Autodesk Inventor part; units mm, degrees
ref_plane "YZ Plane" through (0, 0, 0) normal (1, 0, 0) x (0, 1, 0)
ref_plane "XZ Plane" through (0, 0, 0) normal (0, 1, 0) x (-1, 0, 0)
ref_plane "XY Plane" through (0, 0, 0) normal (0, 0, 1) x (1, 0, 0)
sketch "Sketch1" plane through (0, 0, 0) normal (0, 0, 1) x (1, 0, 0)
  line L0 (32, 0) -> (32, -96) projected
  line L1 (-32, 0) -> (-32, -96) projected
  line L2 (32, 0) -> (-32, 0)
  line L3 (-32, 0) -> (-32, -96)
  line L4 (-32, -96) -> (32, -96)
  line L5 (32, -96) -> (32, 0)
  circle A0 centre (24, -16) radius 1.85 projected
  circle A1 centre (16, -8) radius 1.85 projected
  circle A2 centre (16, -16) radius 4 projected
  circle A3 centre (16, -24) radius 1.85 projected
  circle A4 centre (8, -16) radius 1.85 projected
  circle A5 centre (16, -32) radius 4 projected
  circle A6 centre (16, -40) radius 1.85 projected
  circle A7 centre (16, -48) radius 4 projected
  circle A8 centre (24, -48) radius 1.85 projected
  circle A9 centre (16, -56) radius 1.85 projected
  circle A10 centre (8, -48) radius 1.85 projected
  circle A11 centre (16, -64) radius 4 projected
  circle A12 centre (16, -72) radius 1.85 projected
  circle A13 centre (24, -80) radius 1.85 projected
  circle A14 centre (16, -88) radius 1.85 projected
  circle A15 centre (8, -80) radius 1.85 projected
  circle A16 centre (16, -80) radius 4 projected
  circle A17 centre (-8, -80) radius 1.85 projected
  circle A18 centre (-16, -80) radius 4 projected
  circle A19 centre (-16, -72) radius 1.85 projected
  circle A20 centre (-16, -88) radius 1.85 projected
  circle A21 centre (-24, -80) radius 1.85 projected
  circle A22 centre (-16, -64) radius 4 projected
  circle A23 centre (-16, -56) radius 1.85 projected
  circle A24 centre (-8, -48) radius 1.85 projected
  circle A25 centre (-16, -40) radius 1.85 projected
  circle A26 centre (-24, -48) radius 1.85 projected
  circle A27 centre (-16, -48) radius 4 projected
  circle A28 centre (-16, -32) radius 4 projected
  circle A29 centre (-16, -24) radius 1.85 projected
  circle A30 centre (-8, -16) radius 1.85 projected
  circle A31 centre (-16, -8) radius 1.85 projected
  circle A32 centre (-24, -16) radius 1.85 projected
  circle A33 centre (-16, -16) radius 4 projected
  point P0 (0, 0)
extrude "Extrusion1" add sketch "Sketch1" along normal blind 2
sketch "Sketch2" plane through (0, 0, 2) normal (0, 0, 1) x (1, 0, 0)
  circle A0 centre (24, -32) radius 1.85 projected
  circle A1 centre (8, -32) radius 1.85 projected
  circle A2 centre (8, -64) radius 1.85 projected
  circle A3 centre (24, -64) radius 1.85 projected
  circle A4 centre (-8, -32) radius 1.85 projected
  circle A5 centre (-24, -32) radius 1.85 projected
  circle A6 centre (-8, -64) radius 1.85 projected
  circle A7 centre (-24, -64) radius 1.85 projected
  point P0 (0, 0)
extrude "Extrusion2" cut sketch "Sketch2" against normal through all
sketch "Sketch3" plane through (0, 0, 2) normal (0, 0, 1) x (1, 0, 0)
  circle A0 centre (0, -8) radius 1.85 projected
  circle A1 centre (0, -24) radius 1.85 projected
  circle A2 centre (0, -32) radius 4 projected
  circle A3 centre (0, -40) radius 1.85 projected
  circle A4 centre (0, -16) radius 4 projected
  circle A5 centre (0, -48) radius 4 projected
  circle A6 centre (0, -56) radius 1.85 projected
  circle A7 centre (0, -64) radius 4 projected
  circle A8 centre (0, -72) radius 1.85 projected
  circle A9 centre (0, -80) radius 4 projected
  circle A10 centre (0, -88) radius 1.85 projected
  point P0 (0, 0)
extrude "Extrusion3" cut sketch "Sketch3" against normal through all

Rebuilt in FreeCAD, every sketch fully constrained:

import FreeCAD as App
import Part
import Sketcher

V = App.Vector
Q = App.Units.Quantity


def add_polygon(sketch, points):
    """Adds a closed chain of lines whose ends are joined by coincident constraints."""
    first, n = sketch.GeometryCount, len(points)
    for a, b in zip(points, points[1:] + points[:1]):
        sketch.addGeometry(Part.LineSegment(App.Vector(*a, 0), App.Vector(*b, 0)), False)
    for i in range(n):
        sketch.addConstraint(Sketcher.Constraint("Coincident", first + i, 2, first + (i + 1) % n, 1))

doc = App.newDocument("Part")
body = doc.addObject("PartDesign::Body", "Body")

sketch1 = body.newObject("Sketcher::SketchObject", "Sketch")
sketch1.AttachmentSupport = (doc.getObject("XY_Plane"), [""])
sketch1.MapMode = "FlatFace"
add_polygon(sketch1, [(32, -96), (32, 0), (-32, 0), (-32, -96)])
sketch1.addGeometry(Part.Circle(V(-24, -80, 0), V(0, 0, 1), 1.9), False)
sketch1.addGeometry(Part.Circle(V(-16, -88, 0), V(0, 0, 1), 1.9), False)
sketch1.addGeometry(Part.Circle(V(-16, -80, 0), V(0, 0, 1), 4), False)
sketch1.addGeometry(Part.Circle(V(-8, -80, 0), V(0, 0, 1), 1.9), False)
sketch1.addGeometry(Part.Circle(V(-16, -72, 0), V(0, 0, 1), 1.9), False)
sketch1.addGeometry(Part.Circle(V(-16, -64, 0), V(0, 0, 1), 4), False)
sketch1.addGeometry(Part.Circle(V(-16, -56, 0), V(0, 0, 1), 1.9), False)
sketch1.addGeometry(Part.Circle(V(8, -80, 0), V(0, 0, 1), 1.9), False)
sketch1.addGeometry(Part.Circle(V(16, -88, 0), V(0, 0, 1), 1.9), False)
sketch1.addGeometry(Part.Circle(V(16, -80, 0), V(0, 0, 1), 4), False)
sketch1.addGeometry(Part.Circle(V(24, -80, 0), V(0, 0, 1), 1.9), False)
sketch1.addGeometry(Part.Circle(V(16, -72, 0), V(0, 0, 1), 1.9), False)
sketch1.addGeometry(Part.Circle(V(16, -64, 0), V(0, 0, 1), 4), False)
sketch1.addGeometry(Part.Circle(V(16, -56, 0), V(0, 0, 1), 1.9), False)
sketch1.addGeometry(Part.Circle(V(-24, -48, 0), V(0, 0, 1), 1.9), False)
sketch1.addGeometry(Part.Circle(V(-16, -48, 0), V(0, 0, 1), 4), False)
sketch1.addGeometry(Part.Circle(V(-16, -40, 0), V(0, 0, 1), 1.9), False)
sketch1.addGeometry(Part.Circle(V(-8, -48, 0), V(0, 0, 1), 1.9), False)
sketch1.addGeometry(Part.Circle(V(-16, -32, 0), V(0, 0, 1), 4), False)
sketch1.addGeometry(Part.Circle(V(-24, -16, 0), V(0, 0, 1), 1.9), False)
sketch1.addGeometry(Part.Circle(V(-16, -24, 0), V(0, 0, 1), 1.9), False)
sketch1.addGeometry(Part.Circle(V(-16, -16, 0), V(0, 0, 1), 4), False)
sketch1.addGeometry(Part.Circle(V(-8, -16, 0), V(0, 0, 1), 1.9), False)
sketch1.addGeometry(Part.Circle(V(-16, -8, 0), V(0, 0, 1), 1.9), False)
sketch1.addGeometry(Part.Circle(V(8, -48, 0), V(0, 0, 1), 1.9), False)
sketch1.addGeometry(Part.Circle(V(16, -48, 0), V(0, 0, 1), 4), False)
sketch1.addGeometry(Part.Circle(V(16, -40, 0), V(0, 0, 1), 1.9), False)
sketch1.addGeometry(Part.Circle(V(24, -48, 0), V(0, 0, 1), 1.9), False)
sketch1.addGeometry(Part.Circle(V(16, -32, 0), V(0, 0, 1), 4), False)
sketch1.addGeometry(Part.Circle(V(8, -16, 0), V(0, 0, 1), 1.9), False)
sketch1.addGeometry(Part.Circle(V(16, -24, 0), V(0, 0, 1), 1.9), False)
sketch1.addGeometry(Part.Circle(V(16, -16, 0), V(0, 0, 1), 4), False)
sketch1.addGeometry(Part.Circle(V(24, -16, 0), V(0, 0, 1), 1.9), False)
sketch1.addGeometry(Part.Circle(V(16, -8, 0), V(0, 0, 1), 1.9), False)
sketch1.addConstraint([
    Sketcher.Constraint("Vertical", 0),
    Sketcher.Constraint("Horizontal", 1),
    Sketcher.Constraint("Vertical", 2),
    Sketcher.Constraint("Horizontal", 3),
    Sketcher.Constraint("Equal", 4, 5),
    Sketcher.Constraint("Equal", 5, 7),
    Sketcher.Constraint("Equal", 7, 8),
    Sketcher.Constraint("Equal", 6, 9),
    Sketcher.Constraint("Equal", 8, 10),
    Sketcher.Constraint("Equal", 10, 11),
    Sketcher.Constraint("Equal", 11, 12),
    Sketcher.Constraint("Equal", 9, 13),
    Sketcher.Constraint("Equal", 12, 14),
    Sketcher.Constraint("Equal", 14, 15),
    Sketcher.Constraint("Equal", 13, 16),
    Sketcher.Constraint("Equal", 15, 17),
    Sketcher.Constraint("Equal", 17, 18),
    Sketcher.Constraint("Equal", 16, 19),
    Sketcher.Constraint("Equal", 18, 20),
    Sketcher.Constraint("Equal", 20, 21),
    Sketcher.Constraint("Equal", 19, 22),
    Sketcher.Constraint("Equal", 21, 23),
    Sketcher.Constraint("Equal", 23, 24),
    Sketcher.Constraint("Equal", 22, 25),
    Sketcher.Constraint("Equal", 24, 26),
    Sketcher.Constraint("Equal", 26, 27),
    Sketcher.Constraint("Equal", 27, 28),
    Sketcher.Constraint("Equal", 25, 29),
    Sketcher.Constraint("Equal", 28, 30),
    Sketcher.Constraint("Equal", 30, 31),
    Sketcher.Constraint("Equal", 29, 32),
    Sketcher.Constraint("Equal", 31, 33),
    Sketcher.Constraint("Equal", 33, 34),
    Sketcher.Constraint("Equal", 32, 35),
    Sketcher.Constraint("Equal", 34, 36),
    Sketcher.Constraint("Equal", 36, 37),
    Sketcher.Constraint("Symmetric", 0, 2, 1, 2, -1, 1),
    Sketcher.Constraint("Symmetric", 7, 3, 11, 3, -2),
    Sketcher.Constraint("Symmetric", 5, 3, 12, 3, -2),
    Sketcher.Constraint("Symmetric", 6, 3, 13, 3, -2),
    Sketcher.Constraint("Symmetric", 4, 3, 14, 3, -2),
    Sketcher.Constraint("Symmetric", 8, 3, 15, 3, -2),
    Sketcher.Constraint("Symmetric", 9, 3, 16, 3, -2),
    Sketcher.Constraint("Symmetric", 10, 3, 17, 3, -2),
    Sketcher.Constraint("Symmetric", 21, 3, 28, 3, -2),
    Sketcher.Constraint("Symmetric", 19, 3, 29, 3, -2),
    Sketcher.Constraint("Symmetric", 20, 3, 30, 3, -2),
    Sketcher.Constraint("Symmetric", 18, 3, 31, 3, -2),
    Sketcher.Constraint("Symmetric", 22, 3, 32, 3, -2),
    Sketcher.Constraint("Symmetric", 26, 3, 33, 3, -2),
    Sketcher.Constraint("Symmetric", 24, 3, 34, 3, -2),
    Sketcher.Constraint("Symmetric", 25, 3, 35, 3, -2),
    Sketcher.Constraint("Symmetric", 23, 3, 36, 3, -2),
    Sketcher.Constraint("Symmetric", 27, 3, 37, 3, -2),
    Sketcher.Constraint("Horizontal", 4, 3, 6, 3),
    Sketcher.Constraint("Horizontal", 6, 3, 7, 3),
    Sketcher.Constraint("Horizontal", 18, 3, 19, 3),
    Sketcher.Constraint("Horizontal", 19, 3, 21, 3),
    Sketcher.Constraint("Horizontal", 23, 3, 25, 3),
    Sketcher.Constraint("Horizontal", 25, 3, 26, 3),
    Sketcher.Constraint("Vertical", 5, 3, 6, 3),
    Sketcher.Constraint("Vertical", 6, 3, 8, 3),
    Sketcher.Constraint("Vertical", 8, 3, 9, 3),
    Sketcher.Constraint("Vertical", 9, 3, 10, 3),
    Sketcher.Constraint("Vertical", 4, 3, 18, 3),
    Sketcher.Constraint("Vertical", 10, 3, 19, 3),
    Sketcher.Constraint("Vertical", 19, 3, 20, 3),
    Sketcher.Constraint("Vertical", 7, 3, 21, 3),
    Sketcher.Constraint("Vertical", 20, 3, 22, 3),
    Sketcher.Constraint("Vertical", 18, 3, 23, 3),
    Sketcher.Constraint("Vertical", 22, 3, 24, 3),
    Sketcher.Constraint("Vertical", 24, 3, 25, 3),
    Sketcher.Constraint("Vertical", 21, 3, 26, 3),
    Sketcher.Constraint("Vertical", 25, 3, 27, 3),
    Sketcher.Constraint("Diameter", 6, Q("8 mm")),
    Sketcher.Constraint("Diameter", 4, Q("3.7 mm")),
    Sketcher.Constraint("DistanceX", 1, 2, 1, 1, Q("64 mm")),
    Sketcher.Constraint("DistanceY", 0, 1, 0, 2, Q("96 mm")),
    Sketcher.Constraint("DistanceX", 4, 3, -1, 1, Q("24 mm")),
    Sketcher.Constraint("DistanceY", 4, 3, -1, 1, Q("80 mm")),
    Sketcher.Constraint("DistanceX", 5, 3, -1, 1, Q("16 mm")),
    Sketcher.Constraint("DistanceY", 5, 3, -1, 1, Q("88 mm")),
    Sketcher.Constraint("DistanceX", 7, 3, -1, 1, Q("8 mm")),
    Sketcher.Constraint("DistanceY", 8, 3, -1, 1, Q("72 mm")),
    Sketcher.Constraint("DistanceY", 9, 3, -1, 1, Q("64 mm")),
    Sketcher.Constraint("DistanceY", 10, 3, -1, 1, Q("56 mm")),
    Sketcher.Constraint("DistanceY", 18, 3, -1, 1, Q("48 mm")),
    Sketcher.Constraint("DistanceY", 20, 3, -1, 1, Q("40 mm")),
    Sketcher.Constraint("DistanceY", 22, 3, -1, 1, Q("32 mm")),
    Sketcher.Constraint("DistanceY", 23, 3, -1, 1, Q("16 mm")),
    Sketcher.Constraint("DistanceY", 24, 3, -1, 1, Q("24 mm")),
    Sketcher.Constraint("DistanceY", 27, 3, -1, 1, Q("8 mm")),
])
pad1 = body.newObject("PartDesign::Pad", "Pad")
pad1.Profile = sketch1
pad1.Length = 2

sketch2 = body.newObject("Sketcher::SketchObject", "Sketch001")
sketch2.AttachmentSupport = (doc.getObject("XY_Plane"), [""])
sketch2.MapMode = "FlatFace"
sketch2.AttachmentOffset = App.Placement(V(0, 0, 2), App.Rotation())
sketch2.addGeometry([
    Part.Circle(V(24, -32, 0), V(0, 0, 1), 1.9),
    Part.Circle(V(8, -32, 0), V(0, 0, 1), 1.9),
    Part.Circle(V(8, -64, 0), V(0, 0, 1), 1.9),
    Part.Circle(V(24, -64, 0), V(0, 0, 1), 1.9),
    Part.Circle(V(-8, -32, 0), V(0, 0, 1), 1.9),
    Part.Circle(V(-24, -32, 0), V(0, 0, 1), 1.9),
    Part.Circle(V(-8, -64, 0), V(0, 0, 1), 1.9),
    Part.Circle(V(-24, -64, 0), V(0, 0, 1), 1.9),
], False)
sketch2.addConstraint([
    Sketcher.Constraint("Equal", 0, 1),
    Sketcher.Constraint("Equal", 1, 2),
    Sketcher.Constraint("Equal", 2, 3),
    Sketcher.Constraint("Equal", 3, 4),
    Sketcher.Constraint("Equal", 4, 5),
    Sketcher.Constraint("Equal", 5, 6),
    Sketcher.Constraint("Equal", 6, 7),
    Sketcher.Constraint("Symmetric", 1, 3, 4, 3, -2),
    Sketcher.Constraint("Symmetric", 0, 3, 5, 3, -2),
    Sketcher.Constraint("Symmetric", 2, 3, 6, 3, -2),
    Sketcher.Constraint("Symmetric", 3, 3, 7, 3, -2),
    Sketcher.Constraint("Horizontal", 0, 3, 1, 3),
    Sketcher.Constraint("Horizontal", 2, 3, 3, 3),
    Sketcher.Constraint("Vertical", 1, 3, 2, 3),
    Sketcher.Constraint("Vertical", 0, 3, 3, 3),
    Sketcher.Constraint("Diameter", 0, Q("3.7 mm")),
    Sketcher.Constraint("DistanceX", -1, 1, 0, 3, Q("24 mm")),
    Sketcher.Constraint("DistanceY", 0, 3, -1, 1, Q("32 mm")),
    Sketcher.Constraint("DistanceX", -1, 1, 1, 3, Q("8 mm")),
    Sketcher.Constraint("DistanceY", 2, 3, -1, 1, Q("64 mm")),
])
pocket1 = body.newObject("PartDesign::Pocket", "Pocket")
pocket1.Profile = sketch2
pocket1.Type = "ThroughAll"

sketch3 = body.newObject("Sketcher::SketchObject", "Sketch002")
sketch3.AttachmentSupport = (doc.getObject("XY_Plane"), [""])
sketch3.MapMode = "FlatFace"
sketch3.AttachmentOffset = App.Placement(V(0, 0, 2), App.Rotation())
sketch3.addGeometry([
    Part.Circle(V(0, -8, 0), V(0, 0, 1), 1.9),
    Part.Circle(V(0, -24, 0), V(0, 0, 1), 1.9),
    Part.Circle(V(0, -32, 0), V(0, 0, 1), 4),
    Part.Circle(V(0, -40, 0), V(0, 0, 1), 1.9),
    Part.Circle(V(0, -16, 0), V(0, 0, 1), 4),
    Part.Circle(V(0, -48, 0), V(0, 0, 1), 4),
    Part.Circle(V(0, -56, 0), V(0, 0, 1), 1.9),
    Part.Circle(V(0, -64, 0), V(0, 0, 1), 4),
    Part.Circle(V(0, -72, 0), V(0, 0, 1), 1.9),
    Part.Circle(V(0, -80, 0), V(0, 0, 1), 4),
    Part.Circle(V(0, -88, 0), V(0, 0, 1), 1.9),
], False)
sketch3.addConstraint([
    Sketcher.Constraint("Equal", 0, 1),
    Sketcher.Constraint("Equal", 1, 3),
    Sketcher.Constraint("Equal", 2, 4),
    Sketcher.Constraint("Equal", 4, 5),
    Sketcher.Constraint("Equal", 3, 6),
    Sketcher.Constraint("Equal", 5, 7),
    Sketcher.Constraint("Equal", 6, 8),
    Sketcher.Constraint("Equal", 7, 9),
    Sketcher.Constraint("Equal", 8, 10),
    Sketcher.Constraint("PointOnObject", 0, 3, -2),
    Sketcher.Constraint("PointOnObject", 1, 3, -2),
    Sketcher.Constraint("PointOnObject", 2, 3, -2),
    Sketcher.Constraint("PointOnObject", 3, 3, -2),
    Sketcher.Constraint("PointOnObject", 4, 3, -2),
    Sketcher.Constraint("PointOnObject", 5, 3, -2),
    Sketcher.Constraint("PointOnObject", 6, 3, -2),
    Sketcher.Constraint("PointOnObject", 7, 3, -2),
    Sketcher.Constraint("PointOnObject", 8, 3, -2),
    Sketcher.Constraint("PointOnObject", 9, 3, -2),
    Sketcher.Constraint("PointOnObject", 10, 3, -2),
    Sketcher.Constraint("Diameter", 2, Q("8 mm")),
    Sketcher.Constraint("Diameter", 0, Q("3.7 mm")),
    Sketcher.Constraint("DistanceY", 0, 3, -1, 1, Q("8 mm")),
    Sketcher.Constraint("DistanceY", 1, 3, -1, 1, Q("24 mm")),
    Sketcher.Constraint("DistanceY", 2, 3, -1, 1, Q("32 mm")),
    Sketcher.Constraint("DistanceY", 3, 3, -1, 1, Q("40 mm")),
    Sketcher.Constraint("DistanceY", 4, 3, -1, 1, Q("16 mm")),
    Sketcher.Constraint("DistanceY", 5, 3, -1, 1, Q("48 mm")),
    Sketcher.Constraint("DistanceY", 6, 3, -1, 1, Q("56 mm")),
    Sketcher.Constraint("DistanceY", 7, 3, -1, 1, Q("64 mm")),
    Sketcher.Constraint("DistanceY", 8, 3, -1, 1, Q("72 mm")),
    Sketcher.Constraint("DistanceY", 9, 3, -1, 1, Q("80 mm")),
    Sketcher.Constraint("DistanceY", 10, 3, -1, 1, Q("88 mm")),
])
pocket2 = body.newObject("PartDesign::Pocket", "Pocket001")
pocket2.Profile = sketch3
pocket2.Type = "ThroughAll"

doc.recompute()
